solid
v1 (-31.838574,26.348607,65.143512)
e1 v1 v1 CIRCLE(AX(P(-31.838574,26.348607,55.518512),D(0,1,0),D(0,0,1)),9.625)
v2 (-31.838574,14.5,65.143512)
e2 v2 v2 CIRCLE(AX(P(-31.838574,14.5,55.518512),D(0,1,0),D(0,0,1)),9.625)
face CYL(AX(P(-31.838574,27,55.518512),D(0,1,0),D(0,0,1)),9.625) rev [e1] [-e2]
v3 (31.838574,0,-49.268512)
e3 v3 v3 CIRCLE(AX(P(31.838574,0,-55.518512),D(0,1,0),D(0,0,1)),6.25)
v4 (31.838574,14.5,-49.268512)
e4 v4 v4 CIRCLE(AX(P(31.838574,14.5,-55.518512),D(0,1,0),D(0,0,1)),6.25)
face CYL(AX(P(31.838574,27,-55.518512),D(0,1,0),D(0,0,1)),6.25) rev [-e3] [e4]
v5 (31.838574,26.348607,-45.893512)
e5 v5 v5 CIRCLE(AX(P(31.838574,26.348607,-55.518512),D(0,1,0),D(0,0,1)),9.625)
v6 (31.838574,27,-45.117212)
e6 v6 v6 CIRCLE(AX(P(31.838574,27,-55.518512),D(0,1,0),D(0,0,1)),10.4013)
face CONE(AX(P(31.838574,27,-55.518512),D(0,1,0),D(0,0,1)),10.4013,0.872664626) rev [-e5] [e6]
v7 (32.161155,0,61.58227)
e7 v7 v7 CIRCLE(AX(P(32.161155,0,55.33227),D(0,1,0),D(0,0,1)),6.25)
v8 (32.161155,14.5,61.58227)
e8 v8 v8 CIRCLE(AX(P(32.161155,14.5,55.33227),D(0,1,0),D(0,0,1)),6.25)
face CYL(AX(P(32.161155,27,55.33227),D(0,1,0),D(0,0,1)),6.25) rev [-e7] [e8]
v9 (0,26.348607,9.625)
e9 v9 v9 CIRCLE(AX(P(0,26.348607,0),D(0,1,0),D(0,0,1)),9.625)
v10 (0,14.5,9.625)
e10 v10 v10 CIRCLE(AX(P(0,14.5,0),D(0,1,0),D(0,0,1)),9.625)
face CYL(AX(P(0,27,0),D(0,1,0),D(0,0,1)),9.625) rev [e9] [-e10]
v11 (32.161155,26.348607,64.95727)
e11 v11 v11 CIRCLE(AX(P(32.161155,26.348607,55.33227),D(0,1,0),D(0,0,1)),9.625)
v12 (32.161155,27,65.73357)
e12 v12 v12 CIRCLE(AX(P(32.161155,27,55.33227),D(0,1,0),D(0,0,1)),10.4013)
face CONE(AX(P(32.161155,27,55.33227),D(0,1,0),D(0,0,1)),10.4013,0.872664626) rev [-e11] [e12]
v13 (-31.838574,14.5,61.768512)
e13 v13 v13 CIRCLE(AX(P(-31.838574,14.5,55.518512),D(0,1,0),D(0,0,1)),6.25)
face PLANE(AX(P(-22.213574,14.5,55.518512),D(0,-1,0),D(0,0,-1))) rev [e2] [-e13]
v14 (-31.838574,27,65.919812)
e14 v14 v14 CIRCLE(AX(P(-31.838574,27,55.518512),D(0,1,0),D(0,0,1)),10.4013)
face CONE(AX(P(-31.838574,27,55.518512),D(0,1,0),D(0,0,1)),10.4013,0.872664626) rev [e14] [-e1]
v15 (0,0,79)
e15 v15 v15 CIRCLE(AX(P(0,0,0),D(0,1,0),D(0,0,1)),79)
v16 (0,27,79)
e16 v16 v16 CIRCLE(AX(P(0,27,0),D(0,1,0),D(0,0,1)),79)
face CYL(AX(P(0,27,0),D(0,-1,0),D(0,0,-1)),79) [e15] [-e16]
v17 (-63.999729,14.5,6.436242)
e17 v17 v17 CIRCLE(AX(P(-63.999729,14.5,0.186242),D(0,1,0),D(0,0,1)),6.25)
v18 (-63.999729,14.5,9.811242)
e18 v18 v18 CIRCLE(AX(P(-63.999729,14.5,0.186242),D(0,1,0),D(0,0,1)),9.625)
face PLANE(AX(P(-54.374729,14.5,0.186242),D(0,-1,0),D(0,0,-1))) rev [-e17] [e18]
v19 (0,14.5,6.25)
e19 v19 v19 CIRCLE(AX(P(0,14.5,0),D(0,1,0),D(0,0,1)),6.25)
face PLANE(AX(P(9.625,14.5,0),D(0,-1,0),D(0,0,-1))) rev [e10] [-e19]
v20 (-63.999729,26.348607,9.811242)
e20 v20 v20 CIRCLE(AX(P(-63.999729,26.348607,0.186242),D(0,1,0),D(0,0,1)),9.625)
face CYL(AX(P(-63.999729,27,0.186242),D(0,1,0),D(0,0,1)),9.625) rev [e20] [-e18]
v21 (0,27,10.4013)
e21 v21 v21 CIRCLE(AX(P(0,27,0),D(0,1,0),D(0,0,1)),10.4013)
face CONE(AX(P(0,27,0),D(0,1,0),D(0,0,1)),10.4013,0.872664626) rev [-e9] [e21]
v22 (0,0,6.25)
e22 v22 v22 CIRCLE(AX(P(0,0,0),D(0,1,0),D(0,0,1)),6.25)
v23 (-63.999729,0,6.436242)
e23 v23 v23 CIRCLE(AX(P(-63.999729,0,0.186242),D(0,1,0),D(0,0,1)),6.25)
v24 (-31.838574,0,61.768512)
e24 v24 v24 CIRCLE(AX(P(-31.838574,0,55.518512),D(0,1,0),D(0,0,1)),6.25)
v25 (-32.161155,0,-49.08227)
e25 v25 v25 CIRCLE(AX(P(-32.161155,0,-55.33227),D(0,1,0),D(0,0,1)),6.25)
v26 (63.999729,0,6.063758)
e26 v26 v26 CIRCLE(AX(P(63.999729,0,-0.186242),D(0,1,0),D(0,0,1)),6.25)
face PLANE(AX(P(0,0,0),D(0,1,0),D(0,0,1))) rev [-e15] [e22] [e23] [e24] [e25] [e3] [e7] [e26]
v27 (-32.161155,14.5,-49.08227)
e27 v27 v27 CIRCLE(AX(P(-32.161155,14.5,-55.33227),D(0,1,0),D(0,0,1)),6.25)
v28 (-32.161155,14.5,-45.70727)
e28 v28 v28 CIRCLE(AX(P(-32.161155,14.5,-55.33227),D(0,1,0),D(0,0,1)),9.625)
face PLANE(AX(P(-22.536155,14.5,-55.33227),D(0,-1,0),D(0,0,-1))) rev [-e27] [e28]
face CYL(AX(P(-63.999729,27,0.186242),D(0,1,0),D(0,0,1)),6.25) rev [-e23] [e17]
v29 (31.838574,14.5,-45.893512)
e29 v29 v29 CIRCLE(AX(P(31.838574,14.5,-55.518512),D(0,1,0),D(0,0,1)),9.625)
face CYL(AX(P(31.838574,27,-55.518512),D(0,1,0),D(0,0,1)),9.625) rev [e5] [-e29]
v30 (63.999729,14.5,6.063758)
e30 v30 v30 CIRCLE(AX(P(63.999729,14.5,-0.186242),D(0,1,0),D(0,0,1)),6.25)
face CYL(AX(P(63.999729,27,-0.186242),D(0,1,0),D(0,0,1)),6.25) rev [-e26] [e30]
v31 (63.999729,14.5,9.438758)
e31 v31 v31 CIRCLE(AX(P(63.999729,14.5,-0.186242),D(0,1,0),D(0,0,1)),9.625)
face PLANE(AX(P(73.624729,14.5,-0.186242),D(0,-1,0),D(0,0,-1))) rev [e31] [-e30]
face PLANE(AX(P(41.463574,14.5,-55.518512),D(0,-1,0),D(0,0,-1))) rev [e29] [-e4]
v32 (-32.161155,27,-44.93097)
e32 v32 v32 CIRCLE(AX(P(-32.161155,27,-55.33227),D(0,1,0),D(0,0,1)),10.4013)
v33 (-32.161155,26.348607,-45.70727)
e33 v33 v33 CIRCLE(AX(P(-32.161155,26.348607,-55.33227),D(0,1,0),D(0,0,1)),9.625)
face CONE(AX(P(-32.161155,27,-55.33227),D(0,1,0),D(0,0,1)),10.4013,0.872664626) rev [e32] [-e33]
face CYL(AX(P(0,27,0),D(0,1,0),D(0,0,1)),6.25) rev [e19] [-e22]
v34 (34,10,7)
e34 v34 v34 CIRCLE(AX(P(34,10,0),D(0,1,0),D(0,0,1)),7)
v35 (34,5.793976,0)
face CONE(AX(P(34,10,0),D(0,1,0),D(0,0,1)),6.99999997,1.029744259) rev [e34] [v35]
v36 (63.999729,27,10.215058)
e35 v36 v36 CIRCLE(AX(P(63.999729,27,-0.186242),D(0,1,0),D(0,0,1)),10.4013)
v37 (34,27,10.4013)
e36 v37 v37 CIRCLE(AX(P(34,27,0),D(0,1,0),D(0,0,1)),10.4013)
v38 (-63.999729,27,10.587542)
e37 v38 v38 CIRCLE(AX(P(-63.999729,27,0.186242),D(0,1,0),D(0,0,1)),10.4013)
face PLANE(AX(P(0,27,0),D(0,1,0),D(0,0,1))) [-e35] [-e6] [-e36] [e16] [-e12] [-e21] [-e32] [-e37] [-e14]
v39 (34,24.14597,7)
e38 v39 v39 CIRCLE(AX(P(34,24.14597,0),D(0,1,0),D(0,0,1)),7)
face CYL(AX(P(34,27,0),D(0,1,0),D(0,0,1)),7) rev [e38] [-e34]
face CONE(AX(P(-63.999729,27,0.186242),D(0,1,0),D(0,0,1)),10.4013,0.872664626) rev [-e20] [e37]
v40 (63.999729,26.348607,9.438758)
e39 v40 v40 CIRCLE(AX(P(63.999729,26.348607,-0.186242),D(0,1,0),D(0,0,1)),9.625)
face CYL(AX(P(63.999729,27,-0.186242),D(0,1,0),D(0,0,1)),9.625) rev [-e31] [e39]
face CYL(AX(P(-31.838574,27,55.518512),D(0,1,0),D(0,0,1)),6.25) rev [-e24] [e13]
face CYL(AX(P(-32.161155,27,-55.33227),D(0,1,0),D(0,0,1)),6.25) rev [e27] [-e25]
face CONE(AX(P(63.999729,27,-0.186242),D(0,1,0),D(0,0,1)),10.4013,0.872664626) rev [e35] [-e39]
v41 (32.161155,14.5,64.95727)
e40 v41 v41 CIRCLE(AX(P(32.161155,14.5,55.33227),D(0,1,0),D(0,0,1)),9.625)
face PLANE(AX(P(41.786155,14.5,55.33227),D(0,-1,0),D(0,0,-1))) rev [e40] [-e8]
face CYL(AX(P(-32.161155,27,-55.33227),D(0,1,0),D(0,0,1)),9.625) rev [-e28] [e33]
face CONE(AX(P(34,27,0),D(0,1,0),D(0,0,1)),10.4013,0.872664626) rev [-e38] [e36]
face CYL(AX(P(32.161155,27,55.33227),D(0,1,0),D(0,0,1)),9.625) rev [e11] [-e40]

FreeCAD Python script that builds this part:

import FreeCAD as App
import Part
import Sketcher

V = App.Vector
Q = App.Units.Quantity

doc = App.newDocument("Part")
body = doc.addObject("PartDesign::Body", "Body")

# Sketch on XZ plane
sketch1 = body.newObject("Sketcher::SketchObject", "Sketch")
sketch1.AttachmentSupport = (doc.getObject("XZ_Plane"), [""])
sketch1.MapMode = "FlatFace"
sketch1.addGeometry(Part.Circle(V(0, 0, 0), V(0, 0, 1), 79), False)
sketch1.addGeometry(Part.Circle(V(0, 0, 0), V(0, 0, 1), 6), False)
sketch1.addConstraint(Sketcher.Constraint("Coincident", 0, 3, -1, 1))
sketch1.addConstraint(Sketcher.Constraint("Coincident", 1, 3, -1, 1))
sketch1.addConstraint(Sketcher.Constraint("Diameter", 0, 158.0))
sketch1.addConstraint(Sketcher.Constraint("Diameter", 1, 12.0))
pad1 = body.newObject("PartDesign::Pad", "Pad")
pad1.Profile = sketch1
pad1.Length = 27
pad1.Reversed = True

# Sketch on YZ plane
sketch2 = body.newObject("Sketcher::SketchObject", "Sketch001")
sketch2.AttachmentSupport = (doc.getObject("YZ_Plane"), [""])
sketch2.MapMode = "FlatFace"
sketch2.AttachmentOffset = App.Placement(V(0, 0, 31.838574), App.Rotation())
sketch2.addGeometry(Part.LineSegment(V(0, -55.5, 0), V(27, -55.5, 0)), False)
sketch2.addGeometry(Part.LineSegment(V(27, -55.5, 0), V(27, -45.1, 0)), False)
sketch2.addGeometry(Part.LineSegment(V(27, -45.1, 0), V(26.3, -45.9, 0)), False)
sketch2.addGeometry(Part.LineSegment(V(26.3, -45.9, 0), V(14.5, -45.9, 0)), False)
sketch2.addGeometry(Part.LineSegment(V(14.5, -45.9, 0), V(14.5, -49.3, 0)), False)
sketch2.addGeometry(Part.LineSegment(V(14.5, -49.3, 0), V(0, -49.3, 0)), False)
sketch2.addGeometry(Part.LineSegment(V(0, -49.3, 0), V(0, -55.5, 0)), False)
sketch2.addGeometry(Part.LineSegment(V(27, -55.5, 0), V(0, -55.5, 0)), True)  # axis
sketch2.addConstraint(Sketcher.Constraint("Coincident", 0, 2, 1, 1))
sketch2.addConstraint(Sketcher.Constraint("Coincident", 1, 2, 2, 1))
sketch2.addConstraint(Sketcher.Constraint("Coincident", 2, 2, 3, 1))
sketch2.addConstraint(Sketcher.Constraint("Coincident", 3, 2, 4, 1))
sketch2.addConstraint(Sketcher.Constraint("Coincident", 4, 2, 5, 1))
sketch2.addConstraint(Sketcher.Constraint("Coincident", 5, 2, 6, 1))
sketch2.addConstraint(Sketcher.Constraint("Coincident", 6, 2, 0, 1))
sketch2.addConstraint(Sketcher.Constraint("Horizontal", 0))
sketch2.addConstraint(Sketcher.Constraint("Vertical", 1))
sketch2.addConstraint(Sketcher.Constraint("Horizontal", 3))
sketch2.addConstraint(Sketcher.Constraint("Vertical", 4))
sketch2.addConstraint(Sketcher.Constraint("Horizontal", 5))
sketch2.addConstraint(Sketcher.Constraint("Vertical", 6))
sketch2.addConstraint(Sketcher.Constraint("Horizontal", 7))
sketch2.addConstraint(Sketcher.Constraint("Coincident", 7, 1, 0, 2))
sketch2.addConstraint(Sketcher.Constraint("PointOnObject", 5, 2, -2))
sketch2.addConstraint(Sketcher.Constraint("PointOnObject", 7, 2, -2))
sketch2.addConstraint(Sketcher.Constraint("DistanceX", 0, 1, 0, 2, 27.0))
sketch2.addConstraint(Sketcher.Constraint("Angle", 2, Q("-130 deg")))
sketch2.addConstraint(Sketcher.Constraint("DistanceX", 5, 2, 5, 1, 14.5))
sketch2.addConstraint(Sketcher.Constraint("DistanceY", 6, 2, 6, 1, 6.25))
sketch2.addConstraint(Sketcher.Constraint("DistanceY", 4, 2, 4, 1, 3.375))
sketch2.addConstraint(Sketcher.Constraint("DistanceY", 1, 1, 1, 2, 10.4013))
sketch2.addConstraint(Sketcher.Constraint("DistanceY", 0, 2, -1, 1, 55.518512))
groove = body.newObject("PartDesign::Groove", "Groove")
groove.Profile = sketch2
groove.ReferenceAxis = (sketch2, ["Axis0"])
groove.Angle = 360
doc.recompute()

datumline = body.newObject("PartDesign::Line", "DatumLine")
datumline.Placement = App.Placement(V(0, 0, 0), App.Rotation(V(0, 0, 1), V(0.502518041, 0, 0.864566723)))
linearpattern = body.newObject("PartDesign::LinearPattern", "LinearPattern")
linearpattern.Originals = [groove]
linearpattern.Direction = (datumline, [""])
linearpattern.Mode = "offset"
linearpattern.Offset = 64
linearpattern.Occurrences = 2
body.Tip = linearpattern
doc.recompute()

datumline2 = body.newObject("PartDesign::Line", "DatumLine001")
datumline2.Placement = App.Placement(V(0, 0, 0), App.Rotation(V(0, 0, 1), V(0.002910028, 0, 0.999995766)))
linearpattern2 = body.newObject("PartDesign::LinearPattern", "LinearPattern001")
linearpattern2.Originals = [groove]
linearpattern2.Direction = (datumline2, [""])
linearpattern2.Mode = "offset"
linearpattern2.Offset = 110.851252
linearpattern2.Occurrences = 2
body.Tip = linearpattern2
doc.recompute()

datumline3 = body.newObject("PartDesign::Line", "DatumLine002")
datumline3.Placement = App.Placement(V(0, 0, 0), App.Rotation(V(0, 0, 1), V(-0.497477725, 0, 0.867476751)))
linearpattern3 = body.newObject("PartDesign::LinearPattern", "LinearPattern002")
linearpattern3.Originals = [groove]
linearpattern3.Direction = (datumline3, [""])
linearpattern3.Mode = "offset"
linearpattern3.Offset = 128
linearpattern3.Occurrences = 2
body.Tip = linearpattern3
doc.recompute()

datumline4 = body.newObject("PartDesign::Line", "DatumLine003")
datumline4.Placement = App.Placement(V(0, 0, 0), App.Rotation(V(0, 0, 1), V(-0.864566723, 0, 0.502518041)))
linearpattern4 = body.newObject("PartDesign::LinearPattern", "LinearPattern003")
linearpattern4.Originals = [groove]
linearpattern4.Direction = (datumline4, [""])
linearpattern4.Mode = "offset"
linearpattern4.Offset = 110.851252
linearpattern4.Occurrences = 2
body.Tip = linearpattern4
doc.recompute()

datumline5 = body.newObject("PartDesign::Line", "DatumLine004")
datumline5.Placement = App.Placement(V(0, 0, 0), App.Rotation(V(0, 0, 1), V(-0.999995766, 0, 0.002910028)))
linearpattern5 = body.newObject("PartDesign::LinearPattern", "LinearPattern004")
linearpattern5.Originals = [groove]
linearpattern5.Direction = (datumline5, [""])
linearpattern5.Mode = "offset"
linearpattern5.Offset = 64
linearpattern5.Occurrences = 2
body.Tip = linearpattern5
doc.recompute()

datumline6 = body.newObject("PartDesign::Line", "DatumLine005")
datumline6.Placement = App.Placement(V(0, 0, 0), App.Rotation(V(0, 0, 1), V(-0.497477725, 0, 0.867476751)))
linearpattern6 = body.newObject("PartDesign::LinearPattern", "LinearPattern005")
linearpattern6.Originals = [groove]
linearpattern6.Direction = (datumline6, [""])
linearpattern6.Mode = "offset"
linearpattern6.Offset = 64
linearpattern6.Occurrences = 2
body.Tip = linearpattern6

# Sketch on XZ plane
sketch3 = body.newObject("Sketcher::SketchObject", "Sketch002")
sketch3.AttachmentSupport = (doc.getObject("XZ_Plane"), [""])
sketch3.MapMode = "FlatFace"
sketch3.AttachmentOffset = App.Placement(V(0, 0, -27), App.Rotation())
sketch3.addGeometry(Part.Circle(V(34, 0, 0), V(0, 0, 1), 7), False)
sketch3.addConstraint(Sketcher.Constraint("PointOnObject", 0, 3, -1))
sketch3.addConstraint(Sketcher.Constraint("Diameter", 0, 14.0))
sketch3.addConstraint(Sketcher.Constraint("DistanceX", -1, 1, 0, 3, 34.0))
doc.recompute()
hole = body.newObject("PartDesign::Hole", "Hole")
hole.Profile = sketch3
hole.ThreadType = "None"
hole.Diameter = 14
hole.DepthType = "Dimension"
hole.Depth = 17
hole.DrillPoint = "Angled"
hole.DrillPointAngle = 118
hole.HoleCutType = "Countersink"
hole.HoleCutDiameter = 20.8026
hole.HoleCutCountersinkAngle = 100
hole.Reversed = True

doc.recompute()
